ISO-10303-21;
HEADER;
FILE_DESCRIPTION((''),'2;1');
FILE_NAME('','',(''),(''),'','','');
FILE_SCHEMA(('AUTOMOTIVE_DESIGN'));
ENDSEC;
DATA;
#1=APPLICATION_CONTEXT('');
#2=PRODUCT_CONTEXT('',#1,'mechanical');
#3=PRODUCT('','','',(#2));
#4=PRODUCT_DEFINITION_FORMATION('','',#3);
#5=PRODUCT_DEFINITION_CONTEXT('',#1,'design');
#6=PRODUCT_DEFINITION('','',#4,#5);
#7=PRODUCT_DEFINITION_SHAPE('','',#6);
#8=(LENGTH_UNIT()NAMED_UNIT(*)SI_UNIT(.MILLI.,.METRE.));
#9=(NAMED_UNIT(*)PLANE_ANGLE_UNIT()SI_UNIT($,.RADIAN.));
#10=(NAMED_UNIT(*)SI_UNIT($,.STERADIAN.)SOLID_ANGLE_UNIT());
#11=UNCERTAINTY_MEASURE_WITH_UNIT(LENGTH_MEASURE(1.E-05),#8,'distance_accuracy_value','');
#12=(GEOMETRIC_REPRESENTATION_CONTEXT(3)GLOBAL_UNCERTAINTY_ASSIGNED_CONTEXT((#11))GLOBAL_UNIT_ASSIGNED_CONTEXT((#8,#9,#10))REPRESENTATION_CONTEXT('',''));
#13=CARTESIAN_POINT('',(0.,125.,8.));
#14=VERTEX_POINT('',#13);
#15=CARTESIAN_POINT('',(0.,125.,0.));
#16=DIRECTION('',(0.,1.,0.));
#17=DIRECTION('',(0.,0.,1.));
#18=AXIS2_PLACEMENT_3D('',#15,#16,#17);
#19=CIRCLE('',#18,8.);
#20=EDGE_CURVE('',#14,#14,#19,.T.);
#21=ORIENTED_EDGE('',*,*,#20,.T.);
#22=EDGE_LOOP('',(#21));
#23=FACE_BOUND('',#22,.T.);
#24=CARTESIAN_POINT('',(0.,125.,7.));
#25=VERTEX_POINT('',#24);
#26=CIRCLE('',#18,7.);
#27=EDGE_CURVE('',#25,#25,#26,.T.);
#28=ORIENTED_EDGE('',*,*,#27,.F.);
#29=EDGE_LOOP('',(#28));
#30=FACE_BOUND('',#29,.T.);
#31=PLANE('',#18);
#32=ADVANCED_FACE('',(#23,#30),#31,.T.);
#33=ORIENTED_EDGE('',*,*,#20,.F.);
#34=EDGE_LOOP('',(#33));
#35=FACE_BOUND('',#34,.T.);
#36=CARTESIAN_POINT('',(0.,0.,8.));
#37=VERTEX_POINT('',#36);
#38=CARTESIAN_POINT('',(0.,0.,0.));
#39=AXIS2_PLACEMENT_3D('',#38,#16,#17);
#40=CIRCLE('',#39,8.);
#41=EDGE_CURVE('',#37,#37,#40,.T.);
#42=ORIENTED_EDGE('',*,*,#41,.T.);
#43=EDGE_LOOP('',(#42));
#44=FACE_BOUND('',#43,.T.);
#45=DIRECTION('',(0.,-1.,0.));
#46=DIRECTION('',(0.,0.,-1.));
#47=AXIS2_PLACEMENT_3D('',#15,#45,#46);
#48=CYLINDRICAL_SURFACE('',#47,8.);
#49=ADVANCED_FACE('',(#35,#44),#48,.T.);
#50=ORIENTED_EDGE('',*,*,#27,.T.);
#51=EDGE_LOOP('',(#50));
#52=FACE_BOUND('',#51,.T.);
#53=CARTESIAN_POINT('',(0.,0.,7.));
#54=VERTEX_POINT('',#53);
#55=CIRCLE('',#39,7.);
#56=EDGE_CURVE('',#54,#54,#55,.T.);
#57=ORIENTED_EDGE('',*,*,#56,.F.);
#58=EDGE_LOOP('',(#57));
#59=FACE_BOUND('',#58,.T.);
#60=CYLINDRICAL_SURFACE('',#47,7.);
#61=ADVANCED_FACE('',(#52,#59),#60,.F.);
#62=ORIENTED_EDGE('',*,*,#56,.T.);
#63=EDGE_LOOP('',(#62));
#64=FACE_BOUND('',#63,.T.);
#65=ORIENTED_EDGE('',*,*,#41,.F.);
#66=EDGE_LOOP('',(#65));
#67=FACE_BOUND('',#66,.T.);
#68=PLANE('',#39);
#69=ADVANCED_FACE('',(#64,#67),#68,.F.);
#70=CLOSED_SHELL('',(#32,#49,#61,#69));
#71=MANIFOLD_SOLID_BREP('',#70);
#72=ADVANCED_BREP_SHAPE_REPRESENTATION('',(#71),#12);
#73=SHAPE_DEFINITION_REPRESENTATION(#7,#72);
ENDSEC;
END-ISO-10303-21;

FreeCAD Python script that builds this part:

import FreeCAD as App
import Part
import Sketcher

V = App.Vector

doc = App.newDocument("Part")
body = doc.addObject("PartDesign::Body", "Body")

sketch1 = body.newObject("Sketcher::SketchObject", "Sketch")
sketch1.AttachmentSupport = (doc.getObject("XZ_Plane"), [""])
sketch1.MapMode = "FlatFace"
sketch1.addGeometry(Part.Circle(V(0, 0, 0), V(0, 0, 1), 8), False)
sketch1.addGeometry(Part.Circle(V(0, 0, 0), V(0, 0, 1), 7), False)
sketch1.addConstraint(Sketcher.Constraint("Coincident", 0, 3, -1, 1))
sketch1.addConstraint(Sketcher.Constraint("Coincident", 1, 3, -1, 1))
sketch1.addConstraint(Sketcher.Constraint("Diameter", 0, 16.0))
sketch1.addConstraint(Sketcher.Constraint("Diameter", 1, 14.0))
pad1 = body.newObject("PartDesign::Pad", "Pad")
pad1.Profile = sketch1
pad1.Length = 125
pad1.Reversed = True

doc.recompute()
